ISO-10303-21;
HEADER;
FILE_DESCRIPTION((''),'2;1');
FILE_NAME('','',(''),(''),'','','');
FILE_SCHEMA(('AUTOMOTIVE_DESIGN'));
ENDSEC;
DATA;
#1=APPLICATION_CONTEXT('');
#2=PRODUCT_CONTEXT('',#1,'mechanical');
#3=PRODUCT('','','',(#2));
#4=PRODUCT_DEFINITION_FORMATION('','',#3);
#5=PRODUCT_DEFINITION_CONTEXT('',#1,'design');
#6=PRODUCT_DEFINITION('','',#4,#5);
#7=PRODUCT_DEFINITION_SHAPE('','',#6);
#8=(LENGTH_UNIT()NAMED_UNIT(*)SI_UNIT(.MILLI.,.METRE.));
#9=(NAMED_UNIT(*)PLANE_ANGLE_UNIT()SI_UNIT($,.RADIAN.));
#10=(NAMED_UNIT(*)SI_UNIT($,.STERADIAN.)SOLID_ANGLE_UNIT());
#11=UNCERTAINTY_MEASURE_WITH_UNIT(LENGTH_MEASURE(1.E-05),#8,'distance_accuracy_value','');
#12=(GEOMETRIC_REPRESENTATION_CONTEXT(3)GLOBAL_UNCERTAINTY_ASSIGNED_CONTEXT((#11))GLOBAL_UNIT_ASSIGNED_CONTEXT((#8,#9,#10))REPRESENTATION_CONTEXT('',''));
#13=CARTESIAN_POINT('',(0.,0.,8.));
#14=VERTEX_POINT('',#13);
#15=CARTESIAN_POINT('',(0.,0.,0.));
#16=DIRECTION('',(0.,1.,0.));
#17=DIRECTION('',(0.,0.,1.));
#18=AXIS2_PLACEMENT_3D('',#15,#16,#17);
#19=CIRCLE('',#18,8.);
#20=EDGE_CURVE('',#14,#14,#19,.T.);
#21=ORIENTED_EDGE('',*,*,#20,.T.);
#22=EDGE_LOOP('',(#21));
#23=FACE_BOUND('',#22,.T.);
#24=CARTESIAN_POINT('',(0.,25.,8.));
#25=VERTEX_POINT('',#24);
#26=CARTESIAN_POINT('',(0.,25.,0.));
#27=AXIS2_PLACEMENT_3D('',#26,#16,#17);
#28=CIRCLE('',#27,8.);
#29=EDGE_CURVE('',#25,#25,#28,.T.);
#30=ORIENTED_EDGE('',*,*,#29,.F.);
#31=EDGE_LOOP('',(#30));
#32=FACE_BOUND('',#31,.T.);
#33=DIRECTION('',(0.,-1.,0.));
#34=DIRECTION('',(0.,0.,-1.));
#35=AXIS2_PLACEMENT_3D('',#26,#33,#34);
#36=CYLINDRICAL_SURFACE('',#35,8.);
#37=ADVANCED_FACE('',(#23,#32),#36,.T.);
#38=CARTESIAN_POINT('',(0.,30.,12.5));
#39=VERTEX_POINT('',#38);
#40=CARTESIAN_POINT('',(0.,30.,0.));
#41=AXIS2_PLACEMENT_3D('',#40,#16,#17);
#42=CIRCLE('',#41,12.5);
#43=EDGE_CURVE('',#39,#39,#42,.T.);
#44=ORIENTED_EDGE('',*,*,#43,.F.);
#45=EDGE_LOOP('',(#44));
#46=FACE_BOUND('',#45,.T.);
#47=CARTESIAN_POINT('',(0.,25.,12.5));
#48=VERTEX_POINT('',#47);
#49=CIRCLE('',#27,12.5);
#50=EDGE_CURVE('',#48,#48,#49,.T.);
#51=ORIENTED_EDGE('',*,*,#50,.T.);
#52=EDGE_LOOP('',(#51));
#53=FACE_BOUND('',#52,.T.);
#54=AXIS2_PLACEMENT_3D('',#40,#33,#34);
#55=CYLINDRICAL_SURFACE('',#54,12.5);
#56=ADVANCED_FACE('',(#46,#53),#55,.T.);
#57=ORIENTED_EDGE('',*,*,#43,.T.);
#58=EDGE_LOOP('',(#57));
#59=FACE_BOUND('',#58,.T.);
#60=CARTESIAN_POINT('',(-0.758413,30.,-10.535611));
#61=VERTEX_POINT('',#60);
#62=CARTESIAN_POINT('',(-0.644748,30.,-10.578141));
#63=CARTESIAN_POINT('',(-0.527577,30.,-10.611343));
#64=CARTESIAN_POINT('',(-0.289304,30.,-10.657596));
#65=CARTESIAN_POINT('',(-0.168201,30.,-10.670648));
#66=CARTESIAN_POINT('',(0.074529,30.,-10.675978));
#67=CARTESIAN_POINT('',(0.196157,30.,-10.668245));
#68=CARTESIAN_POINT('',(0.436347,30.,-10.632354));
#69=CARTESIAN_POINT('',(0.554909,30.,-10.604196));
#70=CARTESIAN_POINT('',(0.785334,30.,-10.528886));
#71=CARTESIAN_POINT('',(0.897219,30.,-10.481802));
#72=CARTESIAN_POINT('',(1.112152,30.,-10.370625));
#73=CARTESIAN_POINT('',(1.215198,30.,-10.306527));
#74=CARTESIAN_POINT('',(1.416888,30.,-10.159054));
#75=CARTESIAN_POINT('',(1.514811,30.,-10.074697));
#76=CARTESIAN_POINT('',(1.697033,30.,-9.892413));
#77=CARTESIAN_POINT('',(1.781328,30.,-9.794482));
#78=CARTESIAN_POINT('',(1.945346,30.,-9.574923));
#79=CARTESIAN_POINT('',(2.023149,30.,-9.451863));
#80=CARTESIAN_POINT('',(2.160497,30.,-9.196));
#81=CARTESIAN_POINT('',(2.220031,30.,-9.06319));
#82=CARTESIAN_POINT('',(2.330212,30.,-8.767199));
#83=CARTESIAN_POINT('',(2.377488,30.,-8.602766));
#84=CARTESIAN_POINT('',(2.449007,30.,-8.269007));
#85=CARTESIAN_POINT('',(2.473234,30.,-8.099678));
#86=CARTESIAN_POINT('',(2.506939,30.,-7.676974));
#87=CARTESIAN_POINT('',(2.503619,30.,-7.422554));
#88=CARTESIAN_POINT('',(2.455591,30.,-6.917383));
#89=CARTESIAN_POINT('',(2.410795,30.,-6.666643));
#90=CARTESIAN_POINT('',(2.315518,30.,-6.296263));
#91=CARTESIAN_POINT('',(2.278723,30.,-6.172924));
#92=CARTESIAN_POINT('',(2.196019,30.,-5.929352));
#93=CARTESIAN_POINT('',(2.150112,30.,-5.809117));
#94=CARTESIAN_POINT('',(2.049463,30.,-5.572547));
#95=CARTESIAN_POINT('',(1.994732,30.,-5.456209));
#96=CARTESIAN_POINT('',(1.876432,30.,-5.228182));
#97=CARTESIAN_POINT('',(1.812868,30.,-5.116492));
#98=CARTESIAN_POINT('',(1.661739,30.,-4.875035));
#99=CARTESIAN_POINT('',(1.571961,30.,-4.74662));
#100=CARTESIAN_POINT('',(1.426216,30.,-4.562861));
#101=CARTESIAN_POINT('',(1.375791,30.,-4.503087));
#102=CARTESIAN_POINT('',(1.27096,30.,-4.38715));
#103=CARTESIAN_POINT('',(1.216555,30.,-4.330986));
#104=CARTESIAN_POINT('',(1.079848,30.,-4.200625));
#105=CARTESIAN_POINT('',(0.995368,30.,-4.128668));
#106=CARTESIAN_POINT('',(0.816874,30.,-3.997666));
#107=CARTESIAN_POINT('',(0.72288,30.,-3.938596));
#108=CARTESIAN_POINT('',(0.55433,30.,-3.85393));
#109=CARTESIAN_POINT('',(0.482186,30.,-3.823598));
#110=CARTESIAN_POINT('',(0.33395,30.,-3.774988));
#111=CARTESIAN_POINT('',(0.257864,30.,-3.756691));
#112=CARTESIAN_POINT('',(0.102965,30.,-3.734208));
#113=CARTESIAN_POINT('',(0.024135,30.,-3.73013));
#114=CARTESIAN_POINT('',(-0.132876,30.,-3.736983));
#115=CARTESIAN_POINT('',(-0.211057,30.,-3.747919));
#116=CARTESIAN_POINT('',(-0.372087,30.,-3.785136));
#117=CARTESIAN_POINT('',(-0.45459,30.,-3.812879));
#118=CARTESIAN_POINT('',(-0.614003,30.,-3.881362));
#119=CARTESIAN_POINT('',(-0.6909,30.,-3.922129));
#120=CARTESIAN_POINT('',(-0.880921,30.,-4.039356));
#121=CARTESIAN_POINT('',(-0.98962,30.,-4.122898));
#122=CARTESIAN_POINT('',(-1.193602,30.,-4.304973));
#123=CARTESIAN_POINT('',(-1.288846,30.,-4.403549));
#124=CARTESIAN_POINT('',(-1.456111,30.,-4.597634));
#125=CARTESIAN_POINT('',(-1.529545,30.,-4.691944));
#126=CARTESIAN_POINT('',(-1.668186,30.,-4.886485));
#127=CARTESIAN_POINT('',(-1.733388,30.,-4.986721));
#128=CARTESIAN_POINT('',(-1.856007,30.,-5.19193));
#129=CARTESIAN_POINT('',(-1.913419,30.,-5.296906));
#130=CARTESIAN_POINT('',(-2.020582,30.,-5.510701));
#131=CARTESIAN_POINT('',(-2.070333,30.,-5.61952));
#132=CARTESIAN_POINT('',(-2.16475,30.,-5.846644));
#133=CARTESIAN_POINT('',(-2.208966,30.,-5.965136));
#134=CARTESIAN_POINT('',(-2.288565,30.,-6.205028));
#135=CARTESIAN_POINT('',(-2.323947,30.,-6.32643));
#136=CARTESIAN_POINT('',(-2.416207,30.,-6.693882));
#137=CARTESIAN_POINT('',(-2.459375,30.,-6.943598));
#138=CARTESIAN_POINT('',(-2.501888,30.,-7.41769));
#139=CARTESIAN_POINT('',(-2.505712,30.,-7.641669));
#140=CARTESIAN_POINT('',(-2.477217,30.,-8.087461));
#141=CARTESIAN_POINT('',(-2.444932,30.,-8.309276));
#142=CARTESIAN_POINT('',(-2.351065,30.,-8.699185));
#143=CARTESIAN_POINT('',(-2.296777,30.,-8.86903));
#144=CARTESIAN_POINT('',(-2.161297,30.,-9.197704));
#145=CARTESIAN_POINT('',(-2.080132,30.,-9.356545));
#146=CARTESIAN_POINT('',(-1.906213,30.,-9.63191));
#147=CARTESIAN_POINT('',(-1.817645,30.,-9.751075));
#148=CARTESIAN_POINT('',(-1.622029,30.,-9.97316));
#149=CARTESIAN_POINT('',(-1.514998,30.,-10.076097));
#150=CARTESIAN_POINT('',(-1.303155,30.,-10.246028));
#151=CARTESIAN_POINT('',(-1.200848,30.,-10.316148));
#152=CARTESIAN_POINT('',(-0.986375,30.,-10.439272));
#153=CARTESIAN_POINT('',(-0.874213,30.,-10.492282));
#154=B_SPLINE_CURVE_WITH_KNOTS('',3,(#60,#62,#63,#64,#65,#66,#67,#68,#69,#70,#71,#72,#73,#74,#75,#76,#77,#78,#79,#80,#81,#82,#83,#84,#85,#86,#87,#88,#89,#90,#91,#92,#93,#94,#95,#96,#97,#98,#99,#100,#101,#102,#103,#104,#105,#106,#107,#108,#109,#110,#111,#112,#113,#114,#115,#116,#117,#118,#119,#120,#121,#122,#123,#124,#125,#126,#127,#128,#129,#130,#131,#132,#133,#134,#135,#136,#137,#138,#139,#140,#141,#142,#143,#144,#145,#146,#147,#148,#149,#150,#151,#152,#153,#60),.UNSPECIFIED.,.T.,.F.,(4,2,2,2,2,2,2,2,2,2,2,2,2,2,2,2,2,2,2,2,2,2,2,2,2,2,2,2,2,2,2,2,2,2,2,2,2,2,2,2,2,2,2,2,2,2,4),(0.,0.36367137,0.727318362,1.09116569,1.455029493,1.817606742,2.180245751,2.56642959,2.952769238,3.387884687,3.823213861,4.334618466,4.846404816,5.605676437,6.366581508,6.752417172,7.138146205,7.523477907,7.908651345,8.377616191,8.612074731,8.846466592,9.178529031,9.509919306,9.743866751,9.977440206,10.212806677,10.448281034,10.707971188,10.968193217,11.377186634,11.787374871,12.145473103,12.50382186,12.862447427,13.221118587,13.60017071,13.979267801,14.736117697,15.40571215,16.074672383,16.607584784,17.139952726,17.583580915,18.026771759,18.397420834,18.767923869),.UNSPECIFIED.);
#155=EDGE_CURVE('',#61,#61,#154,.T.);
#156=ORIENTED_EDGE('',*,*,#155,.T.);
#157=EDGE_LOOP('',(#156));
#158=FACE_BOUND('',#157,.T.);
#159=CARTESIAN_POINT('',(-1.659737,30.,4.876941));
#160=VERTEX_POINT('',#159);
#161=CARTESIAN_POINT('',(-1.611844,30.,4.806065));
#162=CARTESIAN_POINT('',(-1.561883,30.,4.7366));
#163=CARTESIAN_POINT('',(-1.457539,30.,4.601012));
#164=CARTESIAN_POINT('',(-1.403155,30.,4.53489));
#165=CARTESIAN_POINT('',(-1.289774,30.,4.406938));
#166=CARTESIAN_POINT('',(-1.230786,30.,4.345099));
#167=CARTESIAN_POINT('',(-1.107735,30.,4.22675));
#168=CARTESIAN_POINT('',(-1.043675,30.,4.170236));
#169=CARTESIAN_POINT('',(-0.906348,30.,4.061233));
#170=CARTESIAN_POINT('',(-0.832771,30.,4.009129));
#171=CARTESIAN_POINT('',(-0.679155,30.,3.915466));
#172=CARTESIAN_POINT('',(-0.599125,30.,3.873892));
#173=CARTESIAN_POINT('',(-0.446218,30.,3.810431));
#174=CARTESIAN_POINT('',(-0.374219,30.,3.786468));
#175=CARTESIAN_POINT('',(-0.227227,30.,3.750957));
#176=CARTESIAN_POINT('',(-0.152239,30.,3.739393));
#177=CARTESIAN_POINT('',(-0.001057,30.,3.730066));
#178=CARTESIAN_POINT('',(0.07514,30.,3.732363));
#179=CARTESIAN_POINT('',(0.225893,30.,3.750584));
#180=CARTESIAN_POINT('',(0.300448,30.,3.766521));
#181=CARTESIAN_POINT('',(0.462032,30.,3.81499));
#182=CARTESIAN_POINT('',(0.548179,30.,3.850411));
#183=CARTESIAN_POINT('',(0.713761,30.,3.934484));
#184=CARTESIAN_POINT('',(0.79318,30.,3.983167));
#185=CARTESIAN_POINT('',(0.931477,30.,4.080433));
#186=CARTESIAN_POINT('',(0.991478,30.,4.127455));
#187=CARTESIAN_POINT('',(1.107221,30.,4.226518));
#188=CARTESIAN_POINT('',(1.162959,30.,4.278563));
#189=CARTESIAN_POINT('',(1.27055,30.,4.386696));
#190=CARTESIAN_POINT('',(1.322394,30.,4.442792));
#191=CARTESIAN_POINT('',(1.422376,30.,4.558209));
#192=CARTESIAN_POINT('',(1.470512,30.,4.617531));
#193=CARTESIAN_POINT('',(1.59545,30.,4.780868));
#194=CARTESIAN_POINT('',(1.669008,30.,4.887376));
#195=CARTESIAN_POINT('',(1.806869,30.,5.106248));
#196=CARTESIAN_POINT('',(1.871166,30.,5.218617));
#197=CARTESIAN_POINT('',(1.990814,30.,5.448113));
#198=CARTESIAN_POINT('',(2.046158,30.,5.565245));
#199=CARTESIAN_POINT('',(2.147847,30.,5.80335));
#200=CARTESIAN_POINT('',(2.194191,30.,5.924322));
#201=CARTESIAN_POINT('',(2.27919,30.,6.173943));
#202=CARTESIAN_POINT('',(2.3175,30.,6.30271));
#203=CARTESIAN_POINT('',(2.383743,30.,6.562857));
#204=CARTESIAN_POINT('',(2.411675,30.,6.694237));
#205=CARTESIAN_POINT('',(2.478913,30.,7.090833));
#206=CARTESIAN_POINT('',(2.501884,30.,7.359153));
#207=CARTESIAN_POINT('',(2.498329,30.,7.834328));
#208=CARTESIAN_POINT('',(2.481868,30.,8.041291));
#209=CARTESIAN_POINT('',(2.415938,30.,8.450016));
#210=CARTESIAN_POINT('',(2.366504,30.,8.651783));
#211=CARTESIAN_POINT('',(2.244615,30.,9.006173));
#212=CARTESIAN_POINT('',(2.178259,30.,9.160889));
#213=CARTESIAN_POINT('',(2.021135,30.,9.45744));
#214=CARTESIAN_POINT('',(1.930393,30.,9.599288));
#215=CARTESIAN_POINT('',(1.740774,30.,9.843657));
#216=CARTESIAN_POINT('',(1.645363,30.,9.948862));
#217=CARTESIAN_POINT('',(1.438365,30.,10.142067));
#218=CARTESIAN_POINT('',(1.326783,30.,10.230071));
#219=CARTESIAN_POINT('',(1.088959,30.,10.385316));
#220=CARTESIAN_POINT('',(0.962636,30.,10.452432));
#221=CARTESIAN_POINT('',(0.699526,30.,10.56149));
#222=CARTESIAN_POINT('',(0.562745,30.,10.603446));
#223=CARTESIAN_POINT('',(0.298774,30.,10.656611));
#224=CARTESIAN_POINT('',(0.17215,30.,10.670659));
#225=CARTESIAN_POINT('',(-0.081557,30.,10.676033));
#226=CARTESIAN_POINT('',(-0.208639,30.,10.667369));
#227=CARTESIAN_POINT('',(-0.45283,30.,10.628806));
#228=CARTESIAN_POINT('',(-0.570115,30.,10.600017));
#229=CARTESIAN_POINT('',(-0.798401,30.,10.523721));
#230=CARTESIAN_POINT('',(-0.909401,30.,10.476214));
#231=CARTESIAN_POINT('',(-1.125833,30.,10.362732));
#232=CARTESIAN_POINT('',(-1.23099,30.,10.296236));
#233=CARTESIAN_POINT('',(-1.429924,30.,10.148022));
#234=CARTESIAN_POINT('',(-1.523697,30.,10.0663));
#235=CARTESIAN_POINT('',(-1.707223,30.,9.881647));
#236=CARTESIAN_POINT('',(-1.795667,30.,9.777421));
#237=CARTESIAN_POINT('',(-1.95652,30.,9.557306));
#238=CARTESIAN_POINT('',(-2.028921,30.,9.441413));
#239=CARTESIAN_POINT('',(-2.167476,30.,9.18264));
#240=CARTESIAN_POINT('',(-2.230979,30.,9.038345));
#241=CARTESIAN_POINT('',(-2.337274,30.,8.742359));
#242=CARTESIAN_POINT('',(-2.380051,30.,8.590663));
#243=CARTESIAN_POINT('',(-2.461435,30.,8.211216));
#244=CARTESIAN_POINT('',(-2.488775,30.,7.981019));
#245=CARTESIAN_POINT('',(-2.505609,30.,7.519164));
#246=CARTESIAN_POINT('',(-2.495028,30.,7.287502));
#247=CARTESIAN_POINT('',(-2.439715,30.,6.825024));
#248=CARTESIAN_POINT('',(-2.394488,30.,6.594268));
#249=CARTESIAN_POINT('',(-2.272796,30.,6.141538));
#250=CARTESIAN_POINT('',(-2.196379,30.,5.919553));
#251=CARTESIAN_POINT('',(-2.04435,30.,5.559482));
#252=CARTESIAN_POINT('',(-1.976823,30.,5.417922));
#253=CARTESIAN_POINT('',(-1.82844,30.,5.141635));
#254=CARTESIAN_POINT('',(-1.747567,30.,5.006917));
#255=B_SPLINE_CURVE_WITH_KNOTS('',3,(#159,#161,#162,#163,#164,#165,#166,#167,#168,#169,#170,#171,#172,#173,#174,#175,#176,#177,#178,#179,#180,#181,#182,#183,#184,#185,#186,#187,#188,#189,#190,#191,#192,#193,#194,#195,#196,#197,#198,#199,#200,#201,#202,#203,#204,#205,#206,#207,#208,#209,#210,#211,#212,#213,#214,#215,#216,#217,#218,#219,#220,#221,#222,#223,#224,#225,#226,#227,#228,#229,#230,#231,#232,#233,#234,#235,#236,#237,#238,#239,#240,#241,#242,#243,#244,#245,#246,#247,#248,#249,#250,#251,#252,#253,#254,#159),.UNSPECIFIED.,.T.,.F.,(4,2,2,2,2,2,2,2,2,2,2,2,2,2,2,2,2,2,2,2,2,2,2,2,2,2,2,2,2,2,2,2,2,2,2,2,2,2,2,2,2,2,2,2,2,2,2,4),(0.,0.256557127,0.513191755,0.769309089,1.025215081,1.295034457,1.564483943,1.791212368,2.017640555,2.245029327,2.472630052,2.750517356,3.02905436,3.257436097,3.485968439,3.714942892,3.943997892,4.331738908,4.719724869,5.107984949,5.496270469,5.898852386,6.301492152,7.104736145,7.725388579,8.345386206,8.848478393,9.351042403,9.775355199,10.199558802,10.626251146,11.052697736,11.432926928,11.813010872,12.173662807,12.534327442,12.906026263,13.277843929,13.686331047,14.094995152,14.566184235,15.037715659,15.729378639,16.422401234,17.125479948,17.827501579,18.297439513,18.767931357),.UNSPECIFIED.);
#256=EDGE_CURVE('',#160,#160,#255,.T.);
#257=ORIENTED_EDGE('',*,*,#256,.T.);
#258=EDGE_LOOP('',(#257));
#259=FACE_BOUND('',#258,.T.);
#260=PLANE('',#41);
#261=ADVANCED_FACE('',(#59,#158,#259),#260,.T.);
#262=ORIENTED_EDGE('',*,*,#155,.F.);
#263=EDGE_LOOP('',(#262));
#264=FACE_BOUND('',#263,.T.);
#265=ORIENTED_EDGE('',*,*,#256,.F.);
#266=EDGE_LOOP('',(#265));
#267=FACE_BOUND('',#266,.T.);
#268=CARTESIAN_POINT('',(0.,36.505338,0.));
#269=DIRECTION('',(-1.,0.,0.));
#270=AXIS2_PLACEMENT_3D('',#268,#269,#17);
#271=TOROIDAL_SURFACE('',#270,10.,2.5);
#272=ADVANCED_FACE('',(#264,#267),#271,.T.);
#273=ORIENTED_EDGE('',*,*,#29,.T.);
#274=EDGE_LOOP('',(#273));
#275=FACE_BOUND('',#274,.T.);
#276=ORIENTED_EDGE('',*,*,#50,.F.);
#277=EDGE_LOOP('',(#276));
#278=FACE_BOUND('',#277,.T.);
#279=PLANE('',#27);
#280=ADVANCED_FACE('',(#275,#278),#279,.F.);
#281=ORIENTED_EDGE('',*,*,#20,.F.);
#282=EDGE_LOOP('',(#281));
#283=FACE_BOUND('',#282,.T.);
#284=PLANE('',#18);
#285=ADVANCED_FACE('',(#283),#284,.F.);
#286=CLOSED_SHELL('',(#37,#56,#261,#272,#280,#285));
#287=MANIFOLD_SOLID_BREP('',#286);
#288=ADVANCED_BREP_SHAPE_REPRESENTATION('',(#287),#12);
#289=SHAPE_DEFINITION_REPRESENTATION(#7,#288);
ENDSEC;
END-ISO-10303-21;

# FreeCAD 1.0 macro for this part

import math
import FreeCAD as App
import Part
import Sketcher
Q = App.Units.Quantity

doc = App.newDocument("Part")
body = doc.addObject("PartDesign::Body", "Body")

# Sketch on XZ plane
sketch1 = body.newObject("Sketcher::SketchObject", "Sketch")
sketch1.AttachmentSupport = (doc.getObject("XZ_Plane"), [""])
sketch1.MapMode = "FlatFace"
sketch1.addGeometry(Part.Circle(App.Vector(0, 0, 0), App.Vector(0, 0, 1), 8), False)
sketch1.addConstraint([
    Sketcher.Constraint("Coincident", 0, 3, -1, 1),
    Sketcher.Constraint("Diameter", 0, Q("16 mm")),
])
pad1 = body.newObject("PartDesign::Pad", "Pad")
pad1.Profile = sketch1
pad1.Length = 25
pad1.Reversed = True

# Sketch on XZ plane
sketch2 = body.newObject("Sketcher::SketchObject", "Sketch001")
sketch2.AttachmentSupport = (doc.getObject("XZ_Plane"), [""])
sketch2.MapMode = "FlatFace"
sketch2.AttachmentOffset = App.Placement(App.Vector(0, 0, -25), App.Rotation())
sketch2.addGeometry(Part.Circle(App.Vector(0, 0, 0), App.Vector(0, 0, 1), 12.5), False)
sketch2.addConstraint([
    Sketcher.Constraint("Coincident", 0, 3, -1, 1),
    Sketcher.Constraint("Diameter", 0, Q("25 mm")),
])
pad2 = body.newObject("PartDesign::Pad", "Pad001")
pad2.Profile = sketch2
pad2.Length = 5
pad2.Reversed = True

# Sketch on XY plane
sketch3 = body.newObject("Sketcher::SketchObject", "Sketch002")
sketch3.AttachmentSupport = (doc.getObject("XY_Plane"), [""])
sketch3.MapMode = "FlatFace"
sketch3.addGeometry(Part.Circle(App.Vector(0, 46.505338, 0), App.Vector(0, 0, 1), 2.5), False)
sketch3.addConstraint([
    Sketcher.Constraint("PointOnObject", 0, 3, -2),
    Sketcher.Constraint("Diameter", 0, Q("5 mm")),
    Sketcher.Constraint("DistanceY", -1, 1, 0, 3, Q("46.505338 mm")),
])

# Sketch on YZ plane
sketch4 = body.newObject("Sketcher::SketchObject", "Sketch003")
sketch4.AttachmentSupport = (doc.getObject("YZ_Plane"), [""])
sketch4.MapMode = "FlatFace"
sketch4.addGeometry(Part.ArcOfCircle(Part.Circle(App.Vector(36.505338, 0, 0), App.Vector(0, 0, 1), 10), math.radians(-150.256494), math.radians(152.012748)), False)
sketch4.addConstraint([
    Sketcher.Constraint("PointOnObject", 0, 3, -1),
    Sketcher.Constraint("Radius", 0, Q("10 mm")),
    Sketcher.Constraint("DistanceX", -1, 1, 0, 3, Q("36.505338 mm")),
    Sketcher.Constraint("DistanceY", 0, 1, -1, 1, Q("4.961181 mm")),
    Sketcher.Constraint("DistanceX", -1, 1, 0, 2, Q("27.674818 mm")),
])
doc.recompute()

additivepipe = body.newObject("PartDesign::AdditivePipe", "AdditivePipe")
additivepipe.Profile = sketch3
additivepipe.Spine = (sketch4, ["Edge1"])

doc.recompute()
